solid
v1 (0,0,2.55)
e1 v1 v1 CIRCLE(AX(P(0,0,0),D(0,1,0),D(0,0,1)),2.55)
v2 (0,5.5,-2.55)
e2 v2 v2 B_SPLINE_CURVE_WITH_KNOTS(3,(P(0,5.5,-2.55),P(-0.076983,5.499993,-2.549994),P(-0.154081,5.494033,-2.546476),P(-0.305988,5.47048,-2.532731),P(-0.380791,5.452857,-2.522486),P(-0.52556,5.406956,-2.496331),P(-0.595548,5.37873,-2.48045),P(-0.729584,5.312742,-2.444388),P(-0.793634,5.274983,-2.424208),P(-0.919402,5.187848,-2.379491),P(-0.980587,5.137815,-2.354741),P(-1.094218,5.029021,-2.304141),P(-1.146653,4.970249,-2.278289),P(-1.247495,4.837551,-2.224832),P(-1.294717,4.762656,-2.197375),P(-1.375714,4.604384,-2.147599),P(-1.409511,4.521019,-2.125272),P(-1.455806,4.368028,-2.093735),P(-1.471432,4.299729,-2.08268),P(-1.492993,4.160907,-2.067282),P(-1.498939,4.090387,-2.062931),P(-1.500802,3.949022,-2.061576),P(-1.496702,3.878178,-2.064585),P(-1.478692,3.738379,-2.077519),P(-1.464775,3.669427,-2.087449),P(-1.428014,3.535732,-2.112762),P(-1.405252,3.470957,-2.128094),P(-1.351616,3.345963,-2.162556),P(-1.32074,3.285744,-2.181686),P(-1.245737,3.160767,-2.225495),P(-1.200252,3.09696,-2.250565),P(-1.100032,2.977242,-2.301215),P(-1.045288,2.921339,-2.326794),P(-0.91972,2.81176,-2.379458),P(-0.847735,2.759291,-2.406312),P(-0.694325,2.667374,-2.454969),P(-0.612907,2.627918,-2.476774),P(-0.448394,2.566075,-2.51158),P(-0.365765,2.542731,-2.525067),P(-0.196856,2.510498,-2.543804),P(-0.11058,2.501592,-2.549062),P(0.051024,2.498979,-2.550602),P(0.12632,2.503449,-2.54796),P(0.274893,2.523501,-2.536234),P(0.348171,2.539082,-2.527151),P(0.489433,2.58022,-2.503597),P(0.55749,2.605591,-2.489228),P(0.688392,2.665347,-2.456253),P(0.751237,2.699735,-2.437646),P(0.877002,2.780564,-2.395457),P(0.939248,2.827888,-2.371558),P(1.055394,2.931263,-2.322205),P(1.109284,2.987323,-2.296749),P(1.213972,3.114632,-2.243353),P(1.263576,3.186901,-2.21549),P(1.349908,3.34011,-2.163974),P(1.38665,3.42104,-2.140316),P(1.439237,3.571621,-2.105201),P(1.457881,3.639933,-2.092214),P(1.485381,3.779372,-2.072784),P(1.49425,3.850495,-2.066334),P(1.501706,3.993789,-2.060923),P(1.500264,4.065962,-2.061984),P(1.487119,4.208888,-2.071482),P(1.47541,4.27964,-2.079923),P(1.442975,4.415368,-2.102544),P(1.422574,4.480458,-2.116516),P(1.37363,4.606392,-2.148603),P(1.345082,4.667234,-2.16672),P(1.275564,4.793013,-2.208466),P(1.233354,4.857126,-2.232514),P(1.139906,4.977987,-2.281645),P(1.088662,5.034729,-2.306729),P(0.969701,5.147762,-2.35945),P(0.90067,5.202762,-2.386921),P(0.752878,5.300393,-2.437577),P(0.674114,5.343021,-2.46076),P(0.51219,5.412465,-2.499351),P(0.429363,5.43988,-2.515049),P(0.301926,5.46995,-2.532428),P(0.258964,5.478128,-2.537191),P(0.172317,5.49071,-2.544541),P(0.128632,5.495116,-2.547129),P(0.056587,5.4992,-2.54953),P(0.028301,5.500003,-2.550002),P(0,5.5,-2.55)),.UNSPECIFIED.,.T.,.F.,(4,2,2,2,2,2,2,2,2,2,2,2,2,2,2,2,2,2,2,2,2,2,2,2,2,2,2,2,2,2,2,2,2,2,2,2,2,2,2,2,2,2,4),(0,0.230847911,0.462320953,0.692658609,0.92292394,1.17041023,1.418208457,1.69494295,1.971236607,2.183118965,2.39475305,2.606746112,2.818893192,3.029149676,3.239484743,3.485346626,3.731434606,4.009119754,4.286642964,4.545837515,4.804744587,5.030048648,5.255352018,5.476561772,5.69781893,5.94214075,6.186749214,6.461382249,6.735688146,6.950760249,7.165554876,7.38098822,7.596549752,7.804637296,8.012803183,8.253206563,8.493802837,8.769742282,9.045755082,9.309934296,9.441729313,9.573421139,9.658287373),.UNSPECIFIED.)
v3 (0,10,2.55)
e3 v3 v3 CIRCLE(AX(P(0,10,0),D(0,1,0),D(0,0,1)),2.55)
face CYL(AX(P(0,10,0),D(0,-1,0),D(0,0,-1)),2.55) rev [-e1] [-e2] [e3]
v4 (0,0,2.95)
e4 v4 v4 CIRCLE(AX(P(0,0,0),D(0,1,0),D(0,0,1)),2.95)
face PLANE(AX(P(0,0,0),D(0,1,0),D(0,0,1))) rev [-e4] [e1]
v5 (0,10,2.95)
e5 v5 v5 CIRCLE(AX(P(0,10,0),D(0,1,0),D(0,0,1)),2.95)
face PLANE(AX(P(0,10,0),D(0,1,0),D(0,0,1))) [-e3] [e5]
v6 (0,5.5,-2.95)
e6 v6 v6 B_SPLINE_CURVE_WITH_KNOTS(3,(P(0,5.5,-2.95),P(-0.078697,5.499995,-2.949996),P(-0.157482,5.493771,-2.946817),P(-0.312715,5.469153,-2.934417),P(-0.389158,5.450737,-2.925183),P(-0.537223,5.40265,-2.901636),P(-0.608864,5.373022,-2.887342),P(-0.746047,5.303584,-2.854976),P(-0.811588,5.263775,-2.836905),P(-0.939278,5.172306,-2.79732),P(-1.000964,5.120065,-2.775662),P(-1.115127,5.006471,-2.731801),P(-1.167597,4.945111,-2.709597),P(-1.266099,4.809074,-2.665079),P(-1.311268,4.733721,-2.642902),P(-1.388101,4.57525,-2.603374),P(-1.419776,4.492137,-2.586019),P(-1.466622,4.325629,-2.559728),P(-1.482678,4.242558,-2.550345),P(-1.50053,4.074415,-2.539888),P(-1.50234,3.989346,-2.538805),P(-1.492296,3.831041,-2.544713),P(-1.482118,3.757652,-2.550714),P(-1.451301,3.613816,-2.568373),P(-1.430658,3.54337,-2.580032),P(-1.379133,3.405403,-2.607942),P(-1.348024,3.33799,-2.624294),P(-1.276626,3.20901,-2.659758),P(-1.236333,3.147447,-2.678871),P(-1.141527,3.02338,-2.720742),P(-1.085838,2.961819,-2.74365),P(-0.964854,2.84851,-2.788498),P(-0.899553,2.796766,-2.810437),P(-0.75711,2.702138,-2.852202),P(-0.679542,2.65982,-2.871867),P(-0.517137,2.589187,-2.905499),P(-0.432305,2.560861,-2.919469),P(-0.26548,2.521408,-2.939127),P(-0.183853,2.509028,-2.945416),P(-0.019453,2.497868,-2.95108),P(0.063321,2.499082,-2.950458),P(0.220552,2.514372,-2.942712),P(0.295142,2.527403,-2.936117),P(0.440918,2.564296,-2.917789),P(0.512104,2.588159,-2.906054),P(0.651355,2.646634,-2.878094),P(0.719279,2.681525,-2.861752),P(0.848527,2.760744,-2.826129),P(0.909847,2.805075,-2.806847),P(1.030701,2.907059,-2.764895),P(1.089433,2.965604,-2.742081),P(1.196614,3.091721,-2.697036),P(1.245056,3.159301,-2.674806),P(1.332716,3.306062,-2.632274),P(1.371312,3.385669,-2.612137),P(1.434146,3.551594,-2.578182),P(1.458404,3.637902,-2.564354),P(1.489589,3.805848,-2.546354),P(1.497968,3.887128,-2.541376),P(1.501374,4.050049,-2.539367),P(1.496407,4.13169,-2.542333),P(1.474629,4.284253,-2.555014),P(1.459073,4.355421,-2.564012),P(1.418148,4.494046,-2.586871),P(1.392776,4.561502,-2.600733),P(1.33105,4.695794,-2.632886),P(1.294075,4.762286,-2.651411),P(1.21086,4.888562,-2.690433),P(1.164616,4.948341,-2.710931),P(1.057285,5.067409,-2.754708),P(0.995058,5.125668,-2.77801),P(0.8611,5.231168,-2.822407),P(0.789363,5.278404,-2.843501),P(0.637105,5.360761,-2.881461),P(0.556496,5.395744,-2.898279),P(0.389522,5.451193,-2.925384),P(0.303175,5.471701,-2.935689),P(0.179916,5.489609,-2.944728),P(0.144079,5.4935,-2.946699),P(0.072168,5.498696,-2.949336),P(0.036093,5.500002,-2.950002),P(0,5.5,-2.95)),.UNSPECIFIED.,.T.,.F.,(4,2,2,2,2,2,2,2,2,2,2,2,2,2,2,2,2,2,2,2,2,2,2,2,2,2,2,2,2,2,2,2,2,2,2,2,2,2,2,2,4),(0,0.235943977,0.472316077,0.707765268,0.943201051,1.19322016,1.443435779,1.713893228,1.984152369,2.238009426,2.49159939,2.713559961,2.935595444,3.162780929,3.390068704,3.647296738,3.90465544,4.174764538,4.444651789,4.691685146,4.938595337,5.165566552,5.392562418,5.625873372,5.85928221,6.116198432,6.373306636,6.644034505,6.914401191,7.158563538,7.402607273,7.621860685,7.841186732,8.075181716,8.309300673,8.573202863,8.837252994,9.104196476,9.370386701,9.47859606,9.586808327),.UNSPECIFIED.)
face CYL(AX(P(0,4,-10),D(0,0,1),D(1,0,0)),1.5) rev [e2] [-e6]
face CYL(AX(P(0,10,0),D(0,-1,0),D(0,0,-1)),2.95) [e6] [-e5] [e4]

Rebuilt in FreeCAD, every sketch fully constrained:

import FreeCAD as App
import Part
import Sketcher
Q = App.Units.Quantity

doc = App.newDocument("Part")
params = doc.addObject("Spreadsheet::Sheet", "Params")
for row, (alias, value) in enumerate([
    ("sketch1_diameter", "5.9 mm"),
    ("sketch1_diameter2", "5.1 mm"),
    ("pad1_length", "10 mm"),
    ("sketch2_diameter", "3 mm"),
    ("pocket1_length", "10 mm"),
], start=1):
    params.set(f"A{row}", alias)
    params.set(f"B{row}", "=" + value)
    params.setAlias(f"B{row}", alias)

body = doc.addObject("PartDesign::Body", "Body")

sketch1 = doc.addObject("Sketcher::SketchObject", "Sketch")
body.addObject(sketch1)
sketch1.AttachmentSupport = (doc.XZ_Plane, [""])
sketch1.MapMode = "FlatFace"
sketch1.addGeometry([
    Part.Circle(App.Vector(0, 0, 0), App.Vector(0, 0, 1), 3),
    Part.Circle(App.Vector(0, 0, 0), App.Vector(0, 0, 1), 2.5),
], False)
sketch1.addConstraint([
    Sketcher.Constraint("Coincident", 0, 3, -1, 1),
    Sketcher.Constraint("Coincident", 1, 3, -1, 1),
    Sketcher.Constraint("Diameter", 0, Q("5.9 mm")),
    Sketcher.Constraint("Diameter", 1, Q("5.1 mm")),
])
sketch1.setExpression("Constraints[2]", "Params.sketch1_diameter")
sketch1.setExpression("Constraints[3]", "Params.sketch1_diameter2")
pad1 = doc.addObject("PartDesign::Pad", "Pad")
body.addObject(pad1)
pad1.Profile = sketch1
pad1.setExpression("Length", "Params.pad1_length")
pad1.Reversed = True

sketch2 = doc.addObject("Sketcher::SketchObject", "Sketch001")
body.addObject(sketch2)
sketch2.AttachmentSupport = (doc.XY_Plane, [""])
sketch2.MapMode = "FlatFace"
sketch2.addGeometry(Part.Circle(App.Vector(0, 4, 0), App.Vector(0, 0, 1), 1.5), False)
sketch2.addConstraint([
    Sketcher.Constraint("PointOnObject", 0, 3, -2),
    Sketcher.Constraint("Diameter", 0, Q("3 mm")),
    Sketcher.Constraint("DistanceY", -1, 1, 0, 3, Q("4 mm")),
])
sketch2.setExpression("Constraints[1]", "Params.sketch2_diameter")
pocket1 = doc.addObject("PartDesign::Pocket", "Pocket")
body.addObject(pocket1)
pocket1.Profile = sketch2
pocket1.setExpression("Length", "Params.pocket1_length")

doc.recompute()
